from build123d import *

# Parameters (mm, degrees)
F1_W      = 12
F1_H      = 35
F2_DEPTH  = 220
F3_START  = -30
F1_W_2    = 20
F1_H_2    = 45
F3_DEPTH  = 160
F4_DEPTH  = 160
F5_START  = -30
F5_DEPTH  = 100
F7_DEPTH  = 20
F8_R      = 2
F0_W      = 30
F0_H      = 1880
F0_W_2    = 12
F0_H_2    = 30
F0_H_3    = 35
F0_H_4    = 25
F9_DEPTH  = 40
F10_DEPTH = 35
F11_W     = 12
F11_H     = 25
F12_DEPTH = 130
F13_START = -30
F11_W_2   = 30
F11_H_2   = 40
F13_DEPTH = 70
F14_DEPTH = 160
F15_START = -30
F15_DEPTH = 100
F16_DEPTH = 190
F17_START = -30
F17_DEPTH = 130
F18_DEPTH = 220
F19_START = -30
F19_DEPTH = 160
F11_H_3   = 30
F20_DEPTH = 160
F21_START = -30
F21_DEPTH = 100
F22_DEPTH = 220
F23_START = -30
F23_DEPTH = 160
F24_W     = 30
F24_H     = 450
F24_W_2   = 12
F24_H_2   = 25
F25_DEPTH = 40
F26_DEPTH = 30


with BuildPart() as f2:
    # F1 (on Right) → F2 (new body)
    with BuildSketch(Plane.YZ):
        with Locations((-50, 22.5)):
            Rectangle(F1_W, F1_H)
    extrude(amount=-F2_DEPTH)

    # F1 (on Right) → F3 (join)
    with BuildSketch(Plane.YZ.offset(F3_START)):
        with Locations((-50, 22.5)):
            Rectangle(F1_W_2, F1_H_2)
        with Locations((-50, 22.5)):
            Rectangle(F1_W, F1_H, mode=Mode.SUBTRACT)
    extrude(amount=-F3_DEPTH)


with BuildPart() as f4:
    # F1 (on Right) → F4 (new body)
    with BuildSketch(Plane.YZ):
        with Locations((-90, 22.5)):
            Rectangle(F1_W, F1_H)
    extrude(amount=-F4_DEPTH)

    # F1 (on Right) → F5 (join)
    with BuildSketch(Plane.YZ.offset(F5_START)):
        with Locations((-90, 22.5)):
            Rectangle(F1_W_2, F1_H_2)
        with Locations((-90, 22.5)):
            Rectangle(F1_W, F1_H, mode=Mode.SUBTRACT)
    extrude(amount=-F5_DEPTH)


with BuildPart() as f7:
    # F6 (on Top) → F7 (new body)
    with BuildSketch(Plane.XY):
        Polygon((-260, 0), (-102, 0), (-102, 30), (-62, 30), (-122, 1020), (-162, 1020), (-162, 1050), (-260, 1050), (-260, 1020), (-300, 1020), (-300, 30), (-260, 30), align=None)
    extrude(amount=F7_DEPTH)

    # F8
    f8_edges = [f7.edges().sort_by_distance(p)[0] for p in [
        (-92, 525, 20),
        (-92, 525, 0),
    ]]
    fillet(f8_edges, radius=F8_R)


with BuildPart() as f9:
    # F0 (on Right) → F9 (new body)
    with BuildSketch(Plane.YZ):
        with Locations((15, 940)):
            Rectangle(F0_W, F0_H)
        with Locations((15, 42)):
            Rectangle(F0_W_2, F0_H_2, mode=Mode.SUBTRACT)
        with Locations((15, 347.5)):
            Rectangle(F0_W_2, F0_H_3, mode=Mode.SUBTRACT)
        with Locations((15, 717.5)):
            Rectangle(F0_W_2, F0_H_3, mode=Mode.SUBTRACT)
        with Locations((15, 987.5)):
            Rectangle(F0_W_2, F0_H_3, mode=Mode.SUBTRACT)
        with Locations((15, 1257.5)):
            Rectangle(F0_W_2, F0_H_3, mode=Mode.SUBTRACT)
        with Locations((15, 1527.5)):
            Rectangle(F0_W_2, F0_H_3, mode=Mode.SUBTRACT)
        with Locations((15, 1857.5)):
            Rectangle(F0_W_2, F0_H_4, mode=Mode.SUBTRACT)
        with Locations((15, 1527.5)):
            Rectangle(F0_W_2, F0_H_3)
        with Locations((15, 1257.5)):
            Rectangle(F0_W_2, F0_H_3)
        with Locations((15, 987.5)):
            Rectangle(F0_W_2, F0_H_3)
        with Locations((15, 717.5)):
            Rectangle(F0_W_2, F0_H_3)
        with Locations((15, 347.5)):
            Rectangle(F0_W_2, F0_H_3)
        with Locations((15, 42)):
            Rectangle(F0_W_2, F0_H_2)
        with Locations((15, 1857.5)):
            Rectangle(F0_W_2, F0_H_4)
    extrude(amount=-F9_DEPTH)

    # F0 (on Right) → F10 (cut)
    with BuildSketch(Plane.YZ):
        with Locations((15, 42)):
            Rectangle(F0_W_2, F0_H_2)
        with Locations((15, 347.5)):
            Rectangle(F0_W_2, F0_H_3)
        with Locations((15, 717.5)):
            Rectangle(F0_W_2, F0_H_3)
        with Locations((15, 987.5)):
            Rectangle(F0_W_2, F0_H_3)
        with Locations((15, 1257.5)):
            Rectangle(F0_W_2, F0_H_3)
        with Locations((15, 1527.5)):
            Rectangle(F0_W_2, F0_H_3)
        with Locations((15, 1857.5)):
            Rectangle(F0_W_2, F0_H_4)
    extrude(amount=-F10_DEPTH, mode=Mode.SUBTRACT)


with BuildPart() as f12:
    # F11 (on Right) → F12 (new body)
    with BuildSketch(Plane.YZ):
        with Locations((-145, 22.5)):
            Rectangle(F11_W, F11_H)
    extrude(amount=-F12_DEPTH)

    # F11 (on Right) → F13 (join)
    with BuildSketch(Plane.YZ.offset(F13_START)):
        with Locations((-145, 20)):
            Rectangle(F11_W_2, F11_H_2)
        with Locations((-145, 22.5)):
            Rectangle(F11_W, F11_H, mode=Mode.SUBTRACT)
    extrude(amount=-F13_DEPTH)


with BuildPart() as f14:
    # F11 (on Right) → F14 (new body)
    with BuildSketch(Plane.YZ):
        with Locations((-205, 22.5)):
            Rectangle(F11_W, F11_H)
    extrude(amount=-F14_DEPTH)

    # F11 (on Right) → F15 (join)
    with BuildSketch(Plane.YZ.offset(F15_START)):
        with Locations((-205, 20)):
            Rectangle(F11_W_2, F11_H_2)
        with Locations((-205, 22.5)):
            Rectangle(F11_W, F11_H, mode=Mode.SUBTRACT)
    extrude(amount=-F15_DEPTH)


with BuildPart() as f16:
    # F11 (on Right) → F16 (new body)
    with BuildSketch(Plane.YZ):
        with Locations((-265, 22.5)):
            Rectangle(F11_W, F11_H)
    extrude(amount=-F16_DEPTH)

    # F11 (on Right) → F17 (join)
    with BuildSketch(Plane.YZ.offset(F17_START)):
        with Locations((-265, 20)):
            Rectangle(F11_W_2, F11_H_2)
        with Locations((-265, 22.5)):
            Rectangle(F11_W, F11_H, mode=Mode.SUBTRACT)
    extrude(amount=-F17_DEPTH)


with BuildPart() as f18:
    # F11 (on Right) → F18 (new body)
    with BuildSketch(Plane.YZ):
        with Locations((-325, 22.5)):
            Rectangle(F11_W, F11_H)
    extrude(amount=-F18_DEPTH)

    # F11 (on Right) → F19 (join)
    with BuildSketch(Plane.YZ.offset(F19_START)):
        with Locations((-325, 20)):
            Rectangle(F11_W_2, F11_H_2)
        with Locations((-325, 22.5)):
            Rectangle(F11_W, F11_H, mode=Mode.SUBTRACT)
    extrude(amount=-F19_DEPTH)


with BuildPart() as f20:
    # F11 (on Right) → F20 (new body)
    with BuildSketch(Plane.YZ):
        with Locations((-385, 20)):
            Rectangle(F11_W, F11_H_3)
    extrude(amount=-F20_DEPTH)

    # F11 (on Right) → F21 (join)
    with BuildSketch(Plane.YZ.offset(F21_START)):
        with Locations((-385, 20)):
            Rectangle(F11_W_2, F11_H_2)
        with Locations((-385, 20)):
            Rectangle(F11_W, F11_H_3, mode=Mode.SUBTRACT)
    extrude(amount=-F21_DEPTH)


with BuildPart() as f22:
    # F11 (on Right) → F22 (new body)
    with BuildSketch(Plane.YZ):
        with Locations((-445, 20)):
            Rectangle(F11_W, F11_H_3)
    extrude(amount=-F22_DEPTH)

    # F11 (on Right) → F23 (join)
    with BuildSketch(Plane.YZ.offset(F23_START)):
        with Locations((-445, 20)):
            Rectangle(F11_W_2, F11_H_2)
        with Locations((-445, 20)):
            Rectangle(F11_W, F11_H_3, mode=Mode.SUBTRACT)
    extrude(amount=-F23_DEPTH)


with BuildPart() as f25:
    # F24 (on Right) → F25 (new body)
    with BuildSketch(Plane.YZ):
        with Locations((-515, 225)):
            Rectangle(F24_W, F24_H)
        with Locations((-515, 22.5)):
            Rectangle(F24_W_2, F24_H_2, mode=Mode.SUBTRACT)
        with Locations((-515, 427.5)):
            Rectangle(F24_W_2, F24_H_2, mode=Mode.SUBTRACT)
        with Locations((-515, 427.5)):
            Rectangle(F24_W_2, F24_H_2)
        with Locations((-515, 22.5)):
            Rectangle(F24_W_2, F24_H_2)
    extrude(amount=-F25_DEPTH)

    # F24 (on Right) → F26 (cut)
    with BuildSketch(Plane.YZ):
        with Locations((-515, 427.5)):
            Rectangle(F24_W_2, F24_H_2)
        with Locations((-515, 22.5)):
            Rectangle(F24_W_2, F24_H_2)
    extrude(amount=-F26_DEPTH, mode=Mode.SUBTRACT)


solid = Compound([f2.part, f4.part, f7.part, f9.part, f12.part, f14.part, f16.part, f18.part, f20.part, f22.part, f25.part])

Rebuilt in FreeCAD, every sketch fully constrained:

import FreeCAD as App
import Part
import Sketcher


def edges_at(feature, points):
    """Names of the edges that pass closest to the given points."""
    edges = feature.Shape.Edges
    near = lambda p: min(range(len(edges)), key=lambda i: edges[i].distToShape(Part.Vertex(*p))[0])
    return sorted({f"Edge{near(p) + 1}" for p in points})


def add_polygon(sketch, points):
    """Adds a closed chain of lines whose ends are joined by coincident constraints."""
    first, n = sketch.GeometryCount, len(points)
    for a, b in zip(points, points[1:] + points[:1]):
        sketch.addGeometry(Part.LineSegment(App.Vector(*a, 0), App.Vector(*b, 0)), False)
    for i in range(n):
        sketch.addConstraint(Sketcher.Constraint("Coincident", first + i, 2, first + (i + 1) % n, 1))

doc = App.newDocument("Part")
body = doc.addObject("PartDesign::Body", "Body")

# Sketch on YZ plane
sketch1 = body.newObject("Sketcher::SketchObject", "Sketch")
sketch1.AttachmentSupport = (doc.getObject("YZ_Plane"), [""])
sketch1.MapMode = "FlatFace"
add_polygon(sketch1, [(-56, 40), (-56, 5), (-44, 5), (-44, 40)])  # lines 0-3
sketch1.addConstraint([
    Sketcher.Constraint("Vertical", 0),
    Sketcher.Constraint("Horizontal", 1),
    Sketcher.Constraint("Vertical", 2),
    Sketcher.Constraint("Horizontal", 3),
    Sketcher.Constraint("DistanceX", 1, 1, 1, 2, 12.0),
    Sketcher.Constraint("DistanceY", 0, 2, 0, 1, 35.0),
    Sketcher.Constraint("DistanceX", 0, 2, -1, 1, 56.0),
    Sketcher.Constraint("DistanceY", -1, 1, 0, 2, 5.0),
])
pad1 = body.newObject("PartDesign::Pad", "Pad")
pad1.Profile = sketch1
pad1.Length = 220
pad1.Reversed = True

# Sketch on YZ plane
sketch2 = body.newObject("Sketcher::SketchObject", "Sketch001")
sketch2.AttachmentSupport = (doc.getObject("YZ_Plane"), [""])
sketch2.MapMode = "FlatFace"
sketch2.AttachmentOffset = App.Placement(App.Vector(0, 0, -30), App.Rotation())
add_polygon(sketch2, [(-60, 45), (-60, 0), (-40, 0), (-40, 45)])  # lines 0-3
add_polygon(sketch2, [(-44, 5), (-56, 5), (-56, 40), (-44, 40)])  # lines 4-7
sketch2.addConstraint([
    Sketcher.Constraint("Vertical", 0),
    Sketcher.Constraint("Horizontal", 1),
    Sketcher.Constraint("Vertical", 2),
    Sketcher.Constraint("Horizontal", 3),
    Sketcher.Constraint("Horizontal", 4),
    Sketcher.Constraint("Vertical", 5),
    Sketcher.Constraint("Horizontal", 6),
    Sketcher.Constraint("Vertical", 7),
    Sketcher.Constraint("PointOnObject", 0, 2, -1),
    Sketcher.Constraint("DistanceX", 1, 1, 1, 2, 20.0),
    Sketcher.Constraint("DistanceX", 4, 2, 4, 1, 12.0),
    Sketcher.Constraint("DistanceY", 0, 2, 0, 1, 45.0),
    Sketcher.Constraint("DistanceY", 5, 1, 5, 2, 35.0),
    Sketcher.Constraint("DistanceX", 0, 2, -1, 1, 60.0),
    Sketcher.Constraint("DistanceX", 4, 2, -1, 1, 56.0),
    Sketcher.Constraint("DistanceY", -1, 1, 4, 2, 5.0),
])
pad2 = body.newObject("PartDesign::Pad", "Pad001")
pad2.Profile = sketch2
pad2.Length = 160
pad2.Reversed = True
body2 = doc.addObject("PartDesign::Body", "Body001")

# Sketch on YZ plane
sketch3 = body2.newObject("Sketcher::SketchObject", "Sketch002")
sketch3.AttachmentSupport = (doc.getObject("YZ_Plane001"), [""])
sketch3.MapMode = "FlatFace"
add_polygon(sketch3, [(-96, 40), (-96, 5), (-84, 5), (-84, 40)])  # lines 0-3
sketch3.addConstraint([
    Sketcher.Constraint("Vertical", 0),
    Sketcher.Constraint("Horizontal", 1),
    Sketcher.Constraint("Vertical", 2),
    Sketcher.Constraint("Horizontal", 3),
    Sketcher.Constraint("DistanceX", 1, 1, 1, 2, 12.0),
    Sketcher.Constraint("DistanceY", 0, 2, 0, 1, 35.0),
    Sketcher.Constraint("DistanceX", 0, 2, -1, 1, 96.0),
    Sketcher.Constraint("DistanceY", -1, 1, 0, 2, 5.0),
])
pad3 = body2.newObject("PartDesign::Pad", "Pad002")
pad3.Profile = sketch3
pad3.Length = 160
pad3.Reversed = True

# Sketch on YZ plane
sketch4 = body2.newObject("Sketcher::SketchObject", "Sketch003")
sketch4.AttachmentSupport = (doc.getObject("YZ_Plane001"), [""])
sketch4.MapMode = "FlatFace"
sketch4.AttachmentOffset = App.Placement(App.Vector(0, 0, -30), App.Rotation())
add_polygon(sketch4, [(-100, 45), (-100, 0), (-80, 0), (-80, 45)])  # lines 0-3
add_polygon(sketch4, [(-84, 5), (-96, 5), (-96, 40), (-84, 40)])  # lines 4-7
sketch4.addConstraint([
    Sketcher.Constraint("Vertical", 0),
    Sketcher.Constraint("Horizontal", 1),
    Sketcher.Constraint("Vertical", 2),
    Sketcher.Constraint("Horizontal", 3),
    Sketcher.Constraint("Horizontal", 4),
    Sketcher.Constraint("Vertical", 5),
    Sketcher.Constraint("Horizontal", 6),
    Sketcher.Constraint("Vertical", 7),
    Sketcher.Constraint("PointOnObject", 0, 2, -1),
    Sketcher.Constraint("DistanceX", 1, 1, 1, 2, 20.0),
    Sketcher.Constraint("DistanceX", 4, 2, 4, 1, 12.0),
    Sketcher.Constraint("DistanceY", 0, 2, 0, 1, 45.0),
    Sketcher.Constraint("DistanceY", 5, 1, 5, 2, 35.0),
    Sketcher.Constraint("DistanceX", 0, 2, -1, 1, 100.0),
    Sketcher.Constraint("DistanceX", 4, 2, -1, 1, 96.0),
    Sketcher.Constraint("DistanceY", -1, 1, 4, 2, 5.0),
])
pad4 = body2.newObject("PartDesign::Pad", "Pad003")
pad4.Profile = sketch4
pad4.Length = 100
pad4.Reversed = True
body3 = doc.addObject("PartDesign::Body", "Body002")

# Sketch on XY plane
sketch5 = body3.newObject("Sketcher::SketchObject", "Sketch004")
sketch5.AttachmentSupport = (doc.getObject("XY_Plane002"), [""])
sketch5.MapMode = "FlatFace"
add_polygon(sketch5, [(-260, 0), (-102, 0), (-102, 30), (-62, 30), (-122, 1020), (-162, 1020), (-162, 1050), (-260, 1050), (-260, 1020), (-300, 1020), (-300, 30), (-260, 30)])  # lines 0-11
sketch5.addConstraint([
    Sketcher.Constraint("Horizontal", 0),
    Sketcher.Constraint("Vertical", 1),
    Sketcher.Constraint("Horizontal", 2),
    Sketcher.Constraint("Horizontal", 4),
    Sketcher.Constraint("Vertical", 5),
    Sketcher.Constraint("Horizontal", 6),
    Sketcher.Constraint("Vertical", 7),
    Sketcher.Constraint("Horizontal", 8),
    Sketcher.Constraint("Vertical", 9),
    Sketcher.Constraint("Horizontal", 10),
    Sketcher.Constraint("Vertical", 11),
    Sketcher.Constraint("PointOnObject", 0, 2, -1),
    Sketcher.Constraint("Horizontal", 4, 2, 7, 2),
    Sketcher.Constraint("Horizontal", 2, 2, 9, 2),
    Sketcher.Constraint("Vertical", 7, 2, 10, 2),
    Sketcher.Constraint("Equal", 2, 4),
    Sketcher.Constraint("Equal", 4, 8),
    Sketcher.Constraint("Equal", 1, 5),
    Sketcher.Constraint("DistanceX", 0, 1, 0, 2, 158.0),
    Sketcher.Constraint("DistanceX", 2, 1, 2, 2, 40.0),
    Sketcher.Constraint("DistanceX", 6, 2, 6, 1, 98.0),
    Sketcher.Constraint("DistanceY", 1, 1, 1, 2, 30.0),
    Sketcher.Constraint("DistanceY", 9, 2, 9, 1, 990.0),
    Sketcher.Constraint("DistanceX", 0, 2, -1, 1, 102.0),
])
pad5 = body3.newObject("PartDesign::Pad", "Pad004")
pad5.Profile = sketch5
pad5.Length = 20
doc.recompute()

fillet = body3.newObject("PartDesign::Fillet", "Fillet")
fillet.Base = (pad5, edges_at(pad5, [(-92, 525, 20), (-92, 525, 0)]))
fillet.Radius = 2
body4 = doc.addObject("PartDesign::Body", "Body003")

# Sketch on YZ plane
sketch6 = body4.newObject("Sketcher::SketchObject", "Sketch005")
sketch6.AttachmentSupport = (doc.getObject("YZ_Plane003"), [""])
sketch6.MapMode = "FlatFace"
add_polygon(sketch6, [(0, 1880), (0, 0), (30, 0), (30, 1880)])  # lines 0-3
sketch6.addConstraint([
    Sketcher.Constraint("Vertical", 0),
    Sketcher.Constraint("Horizontal", 1),
    Sketcher.Constraint("Vertical", 2),
    Sketcher.Constraint("Horizontal", 3),
    Sketcher.Constraint("Coincident", 0, 2, -1, 1),
    Sketcher.Constraint("DistanceX", 1, 1, 1, 2, 30.0),
    Sketcher.Constraint("DistanceY", 0, 2, 0, 1, 1880.0),
])
pad6 = body4.newObject("PartDesign::Pad", "Pad005")
pad6.Profile = sketch6
pad6.Length = 40
pad6.Reversed = True

# Sketch on YZ plane
sketch7 = body4.newObject("Sketcher::SketchObject", "Sketch006")
sketch7.AttachmentSupport = (doc.getObject("YZ_Plane003"), [""])
sketch7.MapMode = "FlatFace"
add_polygon(sketch7, [(9, 57), (9, 27), (21, 27), (21, 57)])  # lines 0-3
add_polygon(sketch7, [(9, 365), (9, 330), (21, 330), (21, 365)])  # lines 4-7
add_polygon(sketch7, [(9, 735), (9, 700), (21, 700), (21, 735)])  # lines 8-11
add_polygon(sketch7, [(9, 1005), (9, 970), (21, 970), (21, 1005)])  # lines 12-15
add_polygon(sketch7, [(9, 1275), (9, 1240), (21, 1240), (21, 1275)])  # lines 16-19
add_polygon(sketch7, [(9, 1545), (9, 1510), (21, 1510), (21, 1545)])  # lines 20-23
add_polygon(sketch7, [(9, 1870), (9, 1845), (21, 1845), (21, 1870)])  # lines 24-27
sketch7.addConstraint([
    Sketcher.Constraint("Vertical", 0),
    Sketcher.Constraint("Horizontal", 1),
    Sketcher.Constraint("Vertical", 2),
    Sketcher.Constraint("Horizontal", 3),
    Sketcher.Constraint("Vertical", 4),
    Sketcher.Constraint("Horizontal", 5),
    Sketcher.Constraint("Vertical", 6),
    Sketcher.Constraint("Horizontal", 7),
    Sketcher.Constraint("Vertical", 8),
    Sketcher.Constraint("Horizontal", 9),
    Sketcher.Constraint("Vertical", 10),
    Sketcher.Constraint("Horizontal", 11),
    Sketcher.Constraint("Vertical", 12),
    Sketcher.Constraint("Horizontal", 13),
    Sketcher.Constraint("Vertical", 14),
    Sketcher.Constraint("Horizontal", 15),
    Sketcher.Constraint("Vertical", 16),
    Sketcher.Constraint("Horizontal", 17),
    Sketcher.Constraint("Vertical", 18),
    Sketcher.Constraint("Horizontal", 19),
    Sketcher.Constraint("Vertical", 20),
    Sketcher.Constraint("Horizontal", 21),
    Sketcher.Constraint("Vertical", 22),
    Sketcher.Constraint("Horizontal", 23),
    Sketcher.Constraint("Vertical", 24),
    Sketcher.Constraint("Horizontal", 25),
    Sketcher.Constraint("Vertical", 26),
    Sketcher.Constraint("Horizontal", 27),
    Sketcher.Constraint("Vertical", 3, 2, 4, 2),
    Sketcher.Constraint("Vertical", 2, 2, 5, 2),
    Sketcher.Constraint("Vertical", 7, 2, 8, 2),
    Sketcher.Constraint("Vertical", 6, 2, 9, 2),
    Sketcher.Constraint("Vertical", 11, 2, 12, 2),
    Sketcher.Constraint("Vertical", 10, 2, 13, 2),
    Sketcher.Constraint("Vertical", 15, 2, 16, 2),
    Sketcher.Constraint("Vertical", 14, 2, 17, 2),
    Sketcher.Constraint("Vertical", 19, 2, 20, 2),
    Sketcher.Constraint("Vertical", 18, 2, 21, 2),
    Sketcher.Constraint("Vertical", 23, 2, 24, 2),
    Sketcher.Constraint("Vertical", 22, 2, 25, 2),
    Sketcher.Constraint("Equal", 6, 8),
    Sketcher.Constraint("Equal", 10, 12),
    Sketcher.Constraint("Equal", 14, 16),
    Sketcher.Constraint("Equal", 18, 20),
    Sketcher.Constraint("DistanceX", 1, 1, 1, 2, 12.0),
    Sketcher.Constraint("DistanceY", 0, 2, 0, 1, 30.0),
    Sketcher.Constraint("DistanceY", 4, 2, 4, 1, 35.0),
    Sketcher.Constraint("DistanceY", 24, 2, 24, 1, 25.0),
    Sketcher.Constraint("DistanceX", -1, 1, 0, 2, 9.0),
    Sketcher.Constraint("DistanceY", -1, 1, 0, 2, 27.0),
    Sketcher.Constraint("DistanceY", -1, 1, 4, 2, 330.0),
    Sketcher.Constraint("DistanceY", -1, 1, 8, 2, 700.0),
    Sketcher.Constraint("DistanceY", -1, 1, 12, 2, 970.0),
    Sketcher.Constraint("DistanceY", -1, 1, 16, 2, 1240.0),
    Sketcher.Constraint("DistanceY", -1, 1, 20, 2, 1510.0),
    Sketcher.Constraint("DistanceY", -1, 1, 24, 2, 1845.0),
])
pocket1 = body4.newObject("PartDesign::Pocket", "Pocket")
pocket1.Profile = sketch7
pocket1.Length = 35
body5 = doc.addObject("PartDesign::Body", "Body004")

# Sketch on YZ plane
sketch8 = body5.newObject("Sketcher::SketchObject", "Sketch007")
sketch8.AttachmentSupport = (doc.getObject("YZ_Plane004"), [""])
sketch8.MapMode = "FlatFace"
add_polygon(sketch8, [(-151, 35), (-151, 10), (-139, 10), (-139, 35)])  # lines 0-3
sketch8.addConstraint([
    Sketcher.Constraint("Vertical", 0),
    Sketcher.Constraint("Horizontal", 1),
    Sketcher.Constraint("Vertical", 2),
    Sketcher.Constraint("Horizontal", 3),
    Sketcher.Constraint("DistanceX", 1, 1, 1, 2, 12.0),
    Sketcher.Constraint("DistanceY", 0, 2, 0, 1, 25.0),
    Sketcher.Constraint("DistanceX", 0, 2, -1, 1, 151.0),
    Sketcher.Constraint("DistanceY", -1, 1, 0, 2, 10.0),
])
pad7 = body5.newObject("PartDesign::Pad", "Pad006")
pad7.Profile = sketch8
pad7.Length = 130
pad7.Reversed = True

# Sketch on YZ plane
sketch9 = body5.newObject("Sketcher::SketchObject", "Sketch008")
sketch9.AttachmentSupport = (doc.getObject("YZ_Plane004"), [""])
sketch9.MapMode = "FlatFace"
sketch9.AttachmentOffset = App.Placement(App.Vector(0, 0, -30), App.Rotation())
add_polygon(sketch9, [(-160, 40), (-160, 0), (-130, 0), (-130, 40)])  # lines 0-3
add_polygon(sketch9, [(-139, 10), (-151, 10), (-151, 35), (-139, 35)])  # lines 4-7
sketch9.addConstraint([
    Sketcher.Constraint("Vertical", 0),
    Sketcher.Constraint("Horizontal", 1),
    Sketcher.Constraint("Vertical", 2),
    Sketcher.Constraint("Horizontal", 3),
    Sketcher.Constraint("Horizontal", 4),
    Sketcher.Constraint("Vertical", 5),
    Sketcher.Constraint("Horizontal", 6),
    Sketcher.Constraint("Vertical", 7),
    Sketcher.Constraint("PointOnObject", 0, 2, -1),
    Sketcher.Constraint("DistanceX", 1, 1, 1, 2, 30.0),
    Sketcher.Constraint("DistanceX", 4, 2, 4, 1, 12.0),
    Sketcher.Constraint("DistanceY", 0, 2, 0, 1, 40.0),
    Sketcher.Constraint("DistanceY", 5, 1, 5, 2, 25.0),
    Sketcher.Constraint("DistanceX", 0, 2, -1, 1, 160.0),
    Sketcher.Constraint("DistanceX", 4, 2, -1, 1, 151.0),
    Sketcher.Constraint("DistanceY", -1, 1, 4, 2, 10.0),
])
pad8 = body5.newObject("PartDesign::Pad", "Pad007")
pad8.Profile = sketch9
pad8.Length = 70
pad8.Reversed = True
body6 = doc.addObject("PartDesign::Body", "Body005")

# Sketch on YZ plane
sketch10 = body6.newObject("Sketcher::SketchObject", "Sketch009")
sketch10.AttachmentSupport = (doc.getObject("YZ_Plane005"), [""])
sketch10.MapMode = "FlatFace"
add_polygon(sketch10, [(-211, 35), (-211, 10), (-199, 10), (-199, 35)])  # lines 0-3
sketch10.addConstraint([
    Sketcher.Constraint("Vertical", 0),
    Sketcher.Constraint("Horizontal", 1),
    Sketcher.Constraint("Vertical", 2),
    Sketcher.Constraint("Horizontal", 3),
    Sketcher.Constraint("DistanceX", 1, 1, 1, 2, 12.0),
    Sketcher.Constraint("DistanceY", 0, 2, 0, 1, 25.0),
    Sketcher.Constraint("DistanceX", 0, 2, -1, 1, 211.0),
    Sketcher.Constraint("DistanceY", -1, 1, 0, 2, 10.0),
])
pad9 = body6.newObject("PartDesign::Pad", "Pad008")
pad9.Profile = sketch10
pad9.Length = 160
pad9.Reversed = True

# Sketch on YZ plane
sketch11 = body6.newObject("Sketcher::SketchObject", "Sketch010")
sketch11.AttachmentSupport = (doc.getObject("YZ_Plane005"), [""])
sketch11.MapMode = "FlatFace"
sketch11.AttachmentOffset = App.Placement(App.Vector(0, 0, -30), App.Rotation())
add_polygon(sketch11, [(-220, 40), (-220, 0), (-190, 0), (-190, 40)])  # lines 0-3
add_polygon(sketch11, [(-199, 10), (-211, 10), (-211, 35), (-199, 35)])  # lines 4-7
sketch11.addConstraint([
    Sketcher.Constraint("Vertical", 0),
    Sketcher.Constraint("Horizontal", 1),
    Sketcher.Constraint("Vertical", 2),
    Sketcher.Constraint("Horizontal", 3),
    Sketcher.Constraint("Horizontal", 4),
    Sketcher.Constraint("Vertical", 5),
    Sketcher.Constraint("Horizontal", 6),
    Sketcher.Constraint("Vertical", 7),
    Sketcher.Constraint("PointOnObject", 0, 2, -1),
    Sketcher.Constraint("DistanceX", 1, 1, 1, 2, 30.0),
    Sketcher.Constraint("DistanceX", 4, 2, 4, 1, 12.0),
    Sketcher.Constraint("DistanceY", 0, 2, 0, 1, 40.0),
    Sketcher.Constraint("DistanceY", 5, 1, 5, 2, 25.0),
    Sketcher.Constraint("DistanceX", 0, 2, -1, 1, 220.0),
    Sketcher.Constraint("DistanceX", 4, 2, -1, 1, 211.0),
    Sketcher.Constraint("DistanceY", -1, 1, 4, 2, 10.0),
])
pad10 = body6.newObject("PartDesign::Pad", "Pad009")
pad10.Profile = sketch11
pad10.Length = 100
pad10.Reversed = True
body7 = doc.addObject("PartDesign::Body", "Body006")

# Sketch on YZ plane
sketch12 = body7.newObject("Sketcher::SketchObject", "Sketch011")
sketch12.AttachmentSupport = (doc.getObject("YZ_Plane006"), [""])
sketch12.MapMode = "FlatFace"
add_polygon(sketch12, [(-271, 35), (-271, 10), (-259, 10), (-259, 35)])  # lines 0-3
sketch12.addConstraint([
    Sketcher.Constraint("Vertical", 0),
    Sketcher.Constraint("Horizontal", 1),
    Sketcher.Constraint("Vertical", 2),
    Sketcher.Constraint("Horizontal", 3),
    Sketcher.Constraint("DistanceX", 1, 1, 1, 2, 12.0),
    Sketcher.Constraint("DistanceY", 0, 2, 0, 1, 25.0),
    Sketcher.Constraint("DistanceX", 0, 2, -1, 1, 271.0),
    Sketcher.Constraint("DistanceY", -1, 1, 0, 2, 10.0),
])
pad11 = body7.newObject("PartDesign::Pad", "Pad010")
pad11.Profile = sketch12
pad11.Length = 190
pad11.Reversed = True

# Sketch on YZ plane
sketch13 = body7.newObject("Sketcher::SketchObject", "Sketch012")
sketch13.AttachmentSupport = (doc.getObject("YZ_Plane006"), [""])
sketch13.MapMode = "FlatFace"
sketch13.AttachmentOffset = App.Placement(App.Vector(0, 0, -30), App.Rotation())
add_polygon(sketch13, [(-280, 40), (-280, 0), (-250, 0), (-250, 40)])  # lines 0-3
add_polygon(sketch13, [(-259, 10), (-271, 10), (-271, 35), (-259, 35)])  # lines 4-7
sketch13.addConstraint([
    Sketcher.Constraint("Vertical", 0),
    Sketcher.Constraint("Horizontal", 1),
    Sketcher.Constraint("Vertical", 2),
    Sketcher.Constraint("Horizontal", 3),
    Sketcher.Constraint("Horizontal", 4),
    Sketcher.Constraint("Vertical", 5),
    Sketcher.Constraint("Horizontal", 6),
    Sketcher.Constraint("Vertical", 7),
    Sketcher.Constraint("PointOnObject", 0, 2, -1),
    Sketcher.Constraint("DistanceX", 1, 1, 1, 2, 30.0),
    Sketcher.Constraint("DistanceX", 4, 2, 4, 1, 12.0),
    Sketcher.Constraint("DistanceY", 0, 2, 0, 1, 40.0),
    Sketcher.Constraint("DistanceY", 5, 1, 5, 2, 25.0),
    Sketcher.Constraint("DistanceX", 0, 2, -1, 1, 280.0),
    Sketcher.Constraint("DistanceX", 4, 2, -1, 1, 271.0),
    Sketcher.Constraint("DistanceY", -1, 1, 4, 2, 10.0),
])
pad12 = body7.newObject("PartDesign::Pad", "Pad011")
pad12.Profile = sketch13
pad12.Length = 130
pad12.Reversed = True
body8 = doc.addObject("PartDesign::Body", "Body007")

# Sketch on YZ plane
sketch14 = body8.newObject("Sketcher::SketchObject", "Sketch013")
sketch14.AttachmentSupport = (doc.getObject("YZ_Plane007"), [""])
sketch14.MapMode = "FlatFace"
add_polygon(sketch14, [(-331, 35), (-331, 10), (-319, 10), (-319, 35)])  # lines 0-3
sketch14.addConstraint([
    Sketcher.Constraint("Vertical", 0),
    Sketcher.Constraint("Horizontal", 1),
    Sketcher.Constraint("Vertical", 2),
    Sketcher.Constraint("Horizontal", 3),
    Sketcher.Constraint("DistanceX", 1, 1, 1, 2, 12.0),
    Sketcher.Constraint("DistanceY", 0, 2, 0, 1, 25.0),
    Sketcher.Constraint("DistanceX", 0, 2, -1, 1, 331.0),
    Sketcher.Constraint("DistanceY", -1, 1, 0, 2, 10.0),
])
pad13 = body8.newObject("PartDesign::Pad", "Pad012")
pad13.Profile = sketch14
pad13.Length = 220
pad13.Reversed = True

# Sketch on YZ plane
sketch15 = body8.newObject("Sketcher::SketchObject", "Sketch014")
sketch15.AttachmentSupport = (doc.getObject("YZ_Plane007"), [""])
sketch15.MapMode = "FlatFace"
sketch15.AttachmentOffset = App.Placement(App.Vector(0, 0, -30), App.Rotation())
add_polygon(sketch15, [(-340, 40), (-340, 0), (-310, 0), (-310, 40)])  # lines 0-3
add_polygon(sketch15, [(-319, 10), (-331, 10), (-331, 35), (-319, 35)])  # lines 4-7
sketch15.addConstraint([
    Sketcher.Constraint("Vertical", 0),
    Sketcher.Constraint("Horizontal", 1),
    Sketcher.Constraint("Vertical", 2),
    Sketcher.Constraint("Horizontal", 3),
    Sketcher.Constraint("Horizontal", 4),
    Sketcher.Constraint("Vertical", 5),
    Sketcher.Constraint("Horizontal", 6),
    Sketcher.Constraint("Vertical", 7),
    Sketcher.Constraint("PointOnObject", 0, 2, -1),
    Sketcher.Constraint("DistanceX", 1, 1, 1, 2, 30.0),
    Sketcher.Constraint("DistanceX", 4, 2, 4, 1, 12.0),
    Sketcher.Constraint("DistanceY", 0, 2, 0, 1, 40.0),
    Sketcher.Constraint("DistanceY", 5, 1, 5, 2, 25.0),
    Sketcher.Constraint("DistanceX", 0, 2, -1, 1, 340.0),
    Sketcher.Constraint("DistanceX", 4, 2, -1, 1, 331.0),
    Sketcher.Constraint("DistanceY", -1, 1, 4, 2, 10.0),
])
pad14 = body8.newObject("PartDesign::Pad", "Pad013")
pad14.Profile = sketch15
pad14.Length = 160
pad14.Reversed = True
body9 = doc.addObject("PartDesign::Body", "Body008")

# Sketch on YZ plane
sketch16 = body9.newObject("Sketcher::SketchObject", "Sketch015")
sketch16.AttachmentSupport = (doc.getObject("YZ_Plane008"), [""])
sketch16.MapMode = "FlatFace"
add_polygon(sketch16, [(-391, 35), (-391, 5), (-379, 5), (-379, 35)])  # lines 0-3
sketch16.addConstraint([
    Sketcher.Constraint("Vertical", 0),
    Sketcher.Constraint("Horizontal", 1),
    Sketcher.Constraint("Vertical", 2),
    Sketcher.Constraint("Horizontal", 3),
    Sketcher.Constraint("DistanceX", 1, 1, 1, 2, 12.0),
    Sketcher.Constraint("DistanceY", 0, 2, 0, 1, 30.0),
    Sketcher.Constraint("DistanceX", 0, 2, -1, 1, 391.0),
    Sketcher.Constraint("DistanceY", -1, 1, 0, 2, 5.0),
])
pad15 = body9.newObject("PartDesign::Pad", "Pad014")
pad15.Profile = sketch16
pad15.Length = 160
pad15.Reversed = True

# Sketch on YZ plane
sketch17 = body9.newObject("Sketcher::SketchObject", "Sketch016")
sketch17.AttachmentSupport = (doc.getObject("YZ_Plane008"), [""])
sketch17.MapMode = "FlatFace"
sketch17.AttachmentOffset = App.Placement(App.Vector(0, 0, -30), App.Rotation())
add_polygon(sketch17, [(-400, 40), (-400, 0), (-370, 0), (-370, 40)])  # lines 0-3
add_polygon(sketch17, [(-379, 5), (-391, 5), (-391, 35), (-379, 35)])  # lines 4-7
sketch17.addConstraint([
    Sketcher.Constraint("Vertical", 0),
    Sketcher.Constraint("Horizontal", 1),
    Sketcher.Constraint("Vertical", 2),
    Sketcher.Constraint("Horizontal", 3),
    Sketcher.Constraint("Horizontal", 4),
    Sketcher.Constraint("Vertical", 5),
    Sketcher.Constraint("Horizontal", 6),
    Sketcher.Constraint("Vertical", 7),
    Sketcher.Constraint("PointOnObject", 0, 2, -1),
    Sketcher.Constraint("Equal", 3, 5),
    Sketcher.Constraint("DistanceX", 1, 1, 1, 2, 30.0),
    Sketcher.Constraint("DistanceX", 4, 2, 4, 1, 12.0),
    Sketcher.Constraint("DistanceY", 0, 2, 0, 1, 40.0),
    Sketcher.Constraint("DistanceX", 0, 2, -1, 1, 400.0),
    Sketcher.Constraint("DistanceX", 4, 2, -1, 1, 391.0),
    Sketcher.Constraint("DistanceY", -1, 1, 4, 2, 5.0),
])
pad16 = body9.newObject("PartDesign::Pad", "Pad015")
pad16.Profile = sketch17
pad16.Length = 100
pad16.Reversed = True
body10 = doc.addObject("PartDesign::Body", "Body009")

# Sketch on YZ plane
sketch18 = body10.newObject("Sketcher::SketchObject", "Sketch017")
sketch18.AttachmentSupport = (doc.getObject("YZ_Plane009"), [""])
sketch18.MapMode = "FlatFace"
add_polygon(sketch18, [(-451, 35), (-451, 5), (-439, 5), (-439, 35)])  # lines 0-3
sketch18.addConstraint([
    Sketcher.Constraint("Vertical", 0),
    Sketcher.Constraint("Horizontal", 1),
    Sketcher.Constraint("Vertical", 2),
    Sketcher.Constraint("Horizontal", 3),
    Sketcher.Constraint("DistanceX", 1, 1, 1, 2, 12.0),
    Sketcher.Constraint("DistanceY", 0, 2, 0, 1, 30.0),
    Sketcher.Constraint("DistanceX", 0, 2, -1, 1, 451.0),
    Sketcher.Constraint("DistanceY", -1, 1, 0, 2, 5.0),
])
pad17 = body10.newObject("PartDesign::Pad", "Pad016")
pad17.Profile = sketch18
pad17.Length = 220
pad17.Reversed = True

# Sketch on YZ plane
sketch19 = body10.newObject("Sketcher::SketchObject", "Sketch018")
sketch19.AttachmentSupport = (doc.getObject("YZ_Plane009"), [""])
sketch19.MapMode = "FlatFace"
sketch19.AttachmentOffset = App.Placement(App.Vector(0, 0, -30), App.Rotation())
add_polygon(sketch19, [(-460, 40), (-460, 0), (-430, 0), (-430, 40)])  # lines 0-3
add_polygon(sketch19, [(-439, 5), (-451, 5), (-451, 35), (-439, 35)])  # lines 4-7
sketch19.addConstraint([
    Sketcher.Constraint("Vertical", 0),
    Sketcher.Constraint("Horizontal", 1),
    Sketcher.Constraint("Vertical", 2),
    Sketcher.Constraint("Horizontal", 3),
    Sketcher.Constraint("Horizontal", 4),
    Sketcher.Constraint("Vertical", 5),
    Sketcher.Constraint("Horizontal", 6),
    Sketcher.Constraint("Vertical", 7),
    Sketcher.Constraint("PointOnObject", 0, 2, -1),
    Sketcher.Constraint("Equal", 3, 5),
    Sketcher.Constraint("DistanceX", 1, 1, 1, 2, 30.0),
    Sketcher.Constraint("DistanceX", 4, 2, 4, 1, 12.0),
    Sketcher.Constraint("DistanceY", 0, 2, 0, 1, 40.0),
    Sketcher.Constraint("DistanceX", 0, 2, -1, 1, 460.0),
    Sketcher.Constraint("DistanceX", 4, 2, -1, 1, 451.0),
    Sketcher.Constraint("DistanceY", -1, 1, 4, 2, 5.0),
])
pad18 = body10.newObject("PartDesign::Pad", "Pad017")
pad18.Profile = sketch19
pad18.Length = 160
pad18.Reversed = True
body11 = doc.addObject("PartDesign::Body", "Body010")

# Sketch on YZ plane
sketch20 = body11.newObject("Sketcher::SketchObject", "Sketch019")
sketch20.AttachmentSupport = (doc.getObject("YZ_Plane010"), [""])
sketch20.MapMode = "FlatFace"
add_polygon(sketch20, [(-530, 450), (-530, 0), (-500, 0), (-500, 450)])  # lines 0-3
sketch20.addConstraint([
    Sketcher.Constraint("Vertical", 0),
    Sketcher.Constraint("Horizontal", 1),
    Sketcher.Constraint("Vertical", 2),
    Sketcher.Constraint("Horizontal", 3),
    Sketcher.Constraint("PointOnObject", 0, 2, -1),
    Sketcher.Constraint("DistanceX", 1, 1, 1, 2, 30.0),
    Sketcher.Constraint("DistanceY", 0, 2, 0, 1, 450.0),
    Sketcher.Constraint("DistanceX", 0, 2, -1, 1, 530.0),
])
pad19 = body11.newObject("PartDesign::Pad", "Pad018")
pad19.Profile = sketch20
pad19.Length = 40
pad19.Reversed = True

# Sketch on YZ plane
sketch21 = body11.newObject("Sketcher::SketchObject", "Sketch020")
sketch21.AttachmentSupport = (doc.getObject("YZ_Plane010"), [""])
sketch21.MapMode = "FlatFace"
add_polygon(sketch21, [(-521, 440), (-521, 415), (-509, 415), (-509, 440)])  # lines 0-3
add_polygon(sketch21, [(-521, 35), (-521, 10), (-509, 10), (-509, 35)])  # lines 4-7
sketch21.addConstraint([
    Sketcher.Constraint("Vertical", 0),
    Sketcher.Constraint("Horizontal", 1),
    Sketcher.Constraint("Vertical", 2),
    Sketcher.Constraint("Horizontal", 3),
    Sketcher.Constraint("Vertical", 4),
    Sketcher.Constraint("Horizontal", 5),
    Sketcher.Constraint("Vertical", 6),
    Sketcher.Constraint("Horizontal", 7),
    Sketcher.Constraint("Vertical", 3, 2, 4, 2),
    Sketcher.Constraint("Vertical", 2, 2, 5, 2),
    Sketcher.Constraint("Equal", 2, 4),
    Sketcher.Constraint("DistanceX", 1, 1, 1, 2, 12.0),
    Sketcher.Constraint("DistanceY", 0, 2, 0, 1, 25.0),
    Sketcher.Constraint("DistanceX", 0, 2, -1, 1, 521.0),
    Sketcher.Constraint("DistanceY", -1, 1, 0, 2, 415.0),
    Sketcher.Constraint("DistanceY", -1, 1, 4, 2, 10.0),
])
pocket2 = body11.newObject("PartDesign::Pocket", "Pocket001")
pocket2.Profile = sketch21
pocket2.Length = 30

doc.recompute()
